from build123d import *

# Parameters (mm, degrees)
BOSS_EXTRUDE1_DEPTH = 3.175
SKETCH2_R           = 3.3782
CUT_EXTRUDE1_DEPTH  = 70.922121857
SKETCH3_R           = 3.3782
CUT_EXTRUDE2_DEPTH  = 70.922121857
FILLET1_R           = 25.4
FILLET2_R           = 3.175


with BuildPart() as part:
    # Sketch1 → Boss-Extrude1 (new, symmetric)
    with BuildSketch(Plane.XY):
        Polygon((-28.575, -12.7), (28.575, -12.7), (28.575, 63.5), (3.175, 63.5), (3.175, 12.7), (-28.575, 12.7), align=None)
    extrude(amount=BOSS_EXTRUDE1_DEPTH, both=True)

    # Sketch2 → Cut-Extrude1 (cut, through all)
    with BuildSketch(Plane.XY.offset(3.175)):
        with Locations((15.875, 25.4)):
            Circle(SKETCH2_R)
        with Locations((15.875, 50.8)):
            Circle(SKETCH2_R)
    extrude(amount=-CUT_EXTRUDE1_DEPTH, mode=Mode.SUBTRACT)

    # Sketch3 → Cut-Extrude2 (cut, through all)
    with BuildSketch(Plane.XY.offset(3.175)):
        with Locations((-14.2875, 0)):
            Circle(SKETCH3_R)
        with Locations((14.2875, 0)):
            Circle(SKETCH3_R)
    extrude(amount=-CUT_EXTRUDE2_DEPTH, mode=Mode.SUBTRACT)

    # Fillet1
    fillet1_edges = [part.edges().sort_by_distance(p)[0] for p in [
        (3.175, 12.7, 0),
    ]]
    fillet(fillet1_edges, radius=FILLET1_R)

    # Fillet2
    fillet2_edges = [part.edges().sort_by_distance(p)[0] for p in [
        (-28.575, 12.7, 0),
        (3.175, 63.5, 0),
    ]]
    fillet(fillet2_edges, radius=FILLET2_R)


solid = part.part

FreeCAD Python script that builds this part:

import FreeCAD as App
import Part
import Sketcher

V = App.Vector
Q = App.Units.Quantity


def edges_at(feature, points):
    """Names of the edges that pass closest to the given points."""
    edges = feature.Shape.Edges
    near = lambda p: min(range(len(edges)), key=lambda i: edges[i].distToShape(Part.Vertex(*p))[0])
    return sorted({f"Edge{near(p) + 1}" for p in points})


def add_polygon(sketch, points):
    """Adds a closed chain of lines whose ends are joined by coincident constraints."""
    first, n = sketch.GeometryCount, len(points)
    for a, b in zip(points, points[1:] + points[:1]):
        sketch.addGeometry(Part.LineSegment(App.Vector(*a, 0), App.Vector(*b, 0)), False)
    for i in range(n):
        sketch.addConstraint(Sketcher.Constraint("Coincident", first + i, 2, first + (i + 1) % n, 1))

doc = App.newDocument("Part")
body = doc.addObject("PartDesign::Body", "Body")

sketch1 = body.newObject("Sketcher::SketchObject", "Sketch")
sketch1.AttachmentSupport = (doc.getObject("XY_Plane"), [""])
sketch1.MapMode = "FlatFace"
add_polygon(sketch1, [(-29, -13), (29, -13), (29, 64), (3, 64), (3, 13), (-29, 13)])
sketch1.addConstraint([
    Sketcher.Constraint("Horizontal", 0),
    Sketcher.Constraint("Vertical", 1),
    Sketcher.Constraint("Horizontal", 2),
    Sketcher.Constraint("Vertical", 3),
    Sketcher.Constraint("Horizontal", 4),
    Sketcher.Constraint("Vertical", 5),
    Sketcher.Constraint("Symmetric", 0, 2, 4, 2, -1, 1),
    Sketcher.Constraint("Equal", 2, 5),
    Sketcher.Constraint("DistanceX", 2, 2, 2, 1, Q("1 in")),
    Sketcher.Constraint("DistanceY", 1, 1, 1, 2, Q("3 in")),
    Sketcher.Constraint("DistanceX", 0, 1, 0, 2, Q("2.25 in")),
])
pad1 = body.newObject("PartDesign::Pad", "Pad")
pad1.Profile = sketch1
pad1.Length = Q("0.25 in")
pad1.Midplane = True

sketch2 = body.newObject("Sketcher::SketchObject", "Sketch001")
sketch2.AttachmentSupport = (doc.getObject("XY_Plane"), [""])
sketch2.MapMode = "FlatFace"
sketch2.AttachmentOffset = App.Placement(V(0, 0, 0.125 * 25.4), App.Rotation())
sketch2.addGeometry([
    Part.Circle(V(15.9, 25.4, 0), V(0, 0, 1), 3.4),
    Part.Circle(V(15.9, 50.8, 0), V(0, 0, 1), 3.4),
], False)
sketch2.addConstraint([
    Sketcher.Constraint("Equal", 0, 1),
    Sketcher.Constraint("Vertical", 0, 3, 1, 3),
    Sketcher.Constraint("Diameter", 0, Q("0.266 in")),
    Sketcher.Constraint("DistanceY", -1, 1, 0, 3, Q("1 in")),
    Sketcher.Constraint("DistanceY", -1, 1, 1, 3, Q("2 in")),
    Sketcher.Constraint("DistanceX", -1, 1, 0, 3, Q("0.625 in")),
])
pocket1 = body.newObject("PartDesign::Pocket", "Pocket")
pocket1.Profile = sketch2
pocket1.Type = "ThroughAll"

sketch3 = body.newObject("Sketcher::SketchObject", "Sketch002")
sketch3.AttachmentSupport = (doc.getObject("XY_Plane"), [""])
sketch3.MapMode = "FlatFace"
sketch3.AttachmentOffset = App.Placement(V(0, 0, 0.125 * 25.4), App.Rotation())
sketch3.addGeometry([
    Part.Circle(V(-14.3, 0, 0), V(0, 0, 1), 3.4),
    Part.Circle(V(14.3, 0, 0), V(0, 0, 1), 3.4),
], False)
sketch3.addConstraint([
    Sketcher.Constraint("Equal", 0, 1),
    Sketcher.Constraint("Symmetric", 0, 3, 1, 3, -1, 1),
    Sketcher.Constraint("PointOnObject", 0, 3, -1),
    Sketcher.Constraint("Diameter", 0, Q("0.266 in")),
    Sketcher.Constraint("DistanceX", 0, 3, -1, 1, Q("0.5625 in")),
])
pocket2 = body.newObject("PartDesign::Pocket", "Pocket001")
pocket2.Profile = sketch3
pocket2.Type = "ThroughAll"
doc.recompute()

fillet = body.newObject("PartDesign::Fillet", "Fillet")
fillet.Base = (pocket2, edges_at(pocket2, [(3.175, 12.7, 0)]))
fillet.Radius = Q("1 in")
doc.recompute()

fillet2 = body.newObject("PartDesign::Fillet", "Fillet001")
fillet2.Base = (fillet, edges_at(fillet, [(-28.575, 12.7, 0), (3.175, 63.5, 0)]))
fillet2.Radius = Q("0.125 in")

doc.recompute()
